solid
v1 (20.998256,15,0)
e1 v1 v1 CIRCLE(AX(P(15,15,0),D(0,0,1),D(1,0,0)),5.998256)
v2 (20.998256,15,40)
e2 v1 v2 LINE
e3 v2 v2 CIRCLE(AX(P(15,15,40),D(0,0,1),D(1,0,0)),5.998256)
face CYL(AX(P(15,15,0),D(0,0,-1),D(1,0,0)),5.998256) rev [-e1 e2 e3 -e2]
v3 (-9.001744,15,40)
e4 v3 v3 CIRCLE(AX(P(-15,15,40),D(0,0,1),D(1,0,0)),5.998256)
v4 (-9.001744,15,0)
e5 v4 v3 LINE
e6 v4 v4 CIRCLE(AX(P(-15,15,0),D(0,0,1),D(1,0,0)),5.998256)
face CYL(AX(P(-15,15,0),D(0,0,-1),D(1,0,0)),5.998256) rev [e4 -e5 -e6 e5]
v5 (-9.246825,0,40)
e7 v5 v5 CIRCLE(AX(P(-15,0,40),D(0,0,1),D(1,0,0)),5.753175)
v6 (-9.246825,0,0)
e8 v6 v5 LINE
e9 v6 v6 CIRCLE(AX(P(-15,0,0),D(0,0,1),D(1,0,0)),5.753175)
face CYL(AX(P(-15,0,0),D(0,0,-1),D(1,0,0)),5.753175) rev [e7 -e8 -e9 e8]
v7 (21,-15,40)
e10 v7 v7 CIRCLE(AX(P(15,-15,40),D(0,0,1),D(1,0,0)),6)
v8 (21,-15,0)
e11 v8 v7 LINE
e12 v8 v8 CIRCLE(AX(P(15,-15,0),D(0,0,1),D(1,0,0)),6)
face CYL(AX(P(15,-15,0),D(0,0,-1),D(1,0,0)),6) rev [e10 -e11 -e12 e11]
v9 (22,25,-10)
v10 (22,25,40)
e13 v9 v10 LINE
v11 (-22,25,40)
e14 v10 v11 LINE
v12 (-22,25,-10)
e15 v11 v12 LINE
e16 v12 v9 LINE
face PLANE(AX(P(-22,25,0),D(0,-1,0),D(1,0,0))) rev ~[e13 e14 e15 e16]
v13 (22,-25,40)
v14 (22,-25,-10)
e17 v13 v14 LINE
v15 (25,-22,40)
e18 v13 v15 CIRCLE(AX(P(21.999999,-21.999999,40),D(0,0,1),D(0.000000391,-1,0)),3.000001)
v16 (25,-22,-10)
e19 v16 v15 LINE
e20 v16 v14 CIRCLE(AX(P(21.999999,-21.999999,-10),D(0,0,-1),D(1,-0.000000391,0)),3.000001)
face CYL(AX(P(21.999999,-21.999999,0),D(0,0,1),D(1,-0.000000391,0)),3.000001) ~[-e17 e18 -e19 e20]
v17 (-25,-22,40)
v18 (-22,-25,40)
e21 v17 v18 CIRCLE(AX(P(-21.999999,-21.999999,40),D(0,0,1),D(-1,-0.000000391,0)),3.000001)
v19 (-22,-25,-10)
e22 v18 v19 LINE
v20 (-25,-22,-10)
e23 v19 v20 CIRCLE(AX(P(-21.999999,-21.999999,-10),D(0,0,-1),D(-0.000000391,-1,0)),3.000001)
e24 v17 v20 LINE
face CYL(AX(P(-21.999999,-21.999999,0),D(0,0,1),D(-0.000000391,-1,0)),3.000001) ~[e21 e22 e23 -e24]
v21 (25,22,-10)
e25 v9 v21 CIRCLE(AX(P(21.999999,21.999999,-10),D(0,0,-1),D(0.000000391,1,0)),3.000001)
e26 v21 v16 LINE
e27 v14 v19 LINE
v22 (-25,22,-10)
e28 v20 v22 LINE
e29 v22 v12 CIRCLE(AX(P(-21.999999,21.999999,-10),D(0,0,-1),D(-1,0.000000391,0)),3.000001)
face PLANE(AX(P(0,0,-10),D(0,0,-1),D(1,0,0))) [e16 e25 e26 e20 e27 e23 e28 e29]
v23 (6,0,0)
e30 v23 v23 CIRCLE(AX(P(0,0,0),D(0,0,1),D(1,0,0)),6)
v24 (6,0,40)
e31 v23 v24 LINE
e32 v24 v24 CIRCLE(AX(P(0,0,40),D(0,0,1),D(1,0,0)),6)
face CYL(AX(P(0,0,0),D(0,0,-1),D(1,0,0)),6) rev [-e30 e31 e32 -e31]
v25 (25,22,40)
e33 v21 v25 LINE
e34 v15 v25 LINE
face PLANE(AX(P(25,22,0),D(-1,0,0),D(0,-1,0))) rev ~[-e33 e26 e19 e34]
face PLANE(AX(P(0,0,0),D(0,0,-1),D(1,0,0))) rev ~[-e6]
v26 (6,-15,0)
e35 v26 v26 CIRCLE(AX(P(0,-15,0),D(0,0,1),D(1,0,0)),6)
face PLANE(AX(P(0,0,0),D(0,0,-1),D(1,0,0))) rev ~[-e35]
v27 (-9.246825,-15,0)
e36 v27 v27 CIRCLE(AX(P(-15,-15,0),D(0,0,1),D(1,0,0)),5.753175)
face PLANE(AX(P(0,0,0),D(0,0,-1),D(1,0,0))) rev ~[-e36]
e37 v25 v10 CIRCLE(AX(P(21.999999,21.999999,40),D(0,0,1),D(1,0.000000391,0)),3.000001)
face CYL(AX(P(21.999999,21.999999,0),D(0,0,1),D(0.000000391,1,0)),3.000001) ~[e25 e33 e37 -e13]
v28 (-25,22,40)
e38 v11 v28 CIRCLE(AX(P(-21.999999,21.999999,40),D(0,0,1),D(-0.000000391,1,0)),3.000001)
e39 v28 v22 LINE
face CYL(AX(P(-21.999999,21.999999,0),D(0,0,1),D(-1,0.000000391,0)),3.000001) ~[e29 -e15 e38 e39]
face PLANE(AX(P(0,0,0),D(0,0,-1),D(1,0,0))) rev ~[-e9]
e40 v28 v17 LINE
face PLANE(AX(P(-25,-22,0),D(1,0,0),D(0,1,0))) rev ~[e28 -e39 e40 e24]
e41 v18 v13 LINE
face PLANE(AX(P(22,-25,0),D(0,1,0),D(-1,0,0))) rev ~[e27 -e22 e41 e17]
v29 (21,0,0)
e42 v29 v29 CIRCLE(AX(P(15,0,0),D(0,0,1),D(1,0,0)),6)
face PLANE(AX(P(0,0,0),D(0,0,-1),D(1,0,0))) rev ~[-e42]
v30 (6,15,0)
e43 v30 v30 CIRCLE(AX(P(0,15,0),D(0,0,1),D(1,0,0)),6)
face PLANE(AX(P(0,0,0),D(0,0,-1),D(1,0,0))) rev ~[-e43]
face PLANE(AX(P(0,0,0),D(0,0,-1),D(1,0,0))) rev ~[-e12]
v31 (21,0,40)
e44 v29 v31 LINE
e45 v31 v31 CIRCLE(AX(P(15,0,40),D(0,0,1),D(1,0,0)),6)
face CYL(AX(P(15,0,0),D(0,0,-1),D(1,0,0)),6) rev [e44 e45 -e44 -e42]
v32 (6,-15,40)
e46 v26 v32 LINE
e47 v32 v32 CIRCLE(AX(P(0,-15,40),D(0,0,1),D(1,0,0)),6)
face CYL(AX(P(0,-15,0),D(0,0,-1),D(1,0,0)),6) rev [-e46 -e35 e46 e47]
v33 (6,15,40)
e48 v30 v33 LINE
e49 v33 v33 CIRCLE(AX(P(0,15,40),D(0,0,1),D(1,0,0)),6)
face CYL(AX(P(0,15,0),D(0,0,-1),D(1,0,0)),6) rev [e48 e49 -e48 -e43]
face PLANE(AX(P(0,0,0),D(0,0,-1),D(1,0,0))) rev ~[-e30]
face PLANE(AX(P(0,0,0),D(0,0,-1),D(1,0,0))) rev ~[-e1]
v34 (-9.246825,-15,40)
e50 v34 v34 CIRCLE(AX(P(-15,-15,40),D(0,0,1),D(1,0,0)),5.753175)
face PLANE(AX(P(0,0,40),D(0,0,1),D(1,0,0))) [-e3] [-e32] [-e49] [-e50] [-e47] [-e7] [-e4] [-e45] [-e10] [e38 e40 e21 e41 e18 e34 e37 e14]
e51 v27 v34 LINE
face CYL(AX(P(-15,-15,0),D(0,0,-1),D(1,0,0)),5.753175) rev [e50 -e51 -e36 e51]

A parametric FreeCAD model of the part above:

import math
import FreeCAD as App
import Part
import Sketcher
Q = App.Units.Quantity

doc = App.newDocument("Part")
body = doc.addObject("PartDesign::Body", "Body")

# Sketch on XY plane
sketch1 = body.newObject("Sketcher::SketchObject", "Sketch")
sketch1.AttachmentSupport = (doc.getObject("XY_Plane"), [""])
sketch1.MapMode = "FlatFace"
sketch1.addGeometry([
    Part.ArcOfCircle(Part.Circle(App.Vector(21.999999, 21.999999, 0), App.Vector(0, 0, 1), 3.000001), math.radians(0.000022), math.radians(89.999978)),  # 0
    Part.LineSegment(App.Vector(22, 25, 0), App.Vector(-22, 25, 0)),  # 1
    Part.ArcOfCircle(Part.Circle(App.Vector(-21.999999, 21.999999, 0), App.Vector(0, 0, 1), 3.000001), math.radians(90.000022), math.radians(179.999978)),  # 2
    Part.LineSegment(App.Vector(-25, 22, 0), App.Vector(-25, -22, 0)),  # 3
    Part.ArcOfCircle(Part.Circle(App.Vector(-21.999999, -21.999999, 0), App.Vector(0, 0, 1), 3.000001), math.radians(-179.999978), math.radians(-90.000022)),  # 4
    Part.LineSegment(App.Vector(-22, -25, 0), App.Vector(22, -25, 0)),  # 5
    Part.ArcOfCircle(Part.Circle(App.Vector(21.999999, -21.999999, 0), App.Vector(0, 0, 1), 3.000001), math.radians(-89.999978), math.radians(-0.000022)),  # 6
    Part.LineSegment(App.Vector(25, -22, 0), App.Vector(25, 22, 0)),  # 7
    Part.Circle(App.Vector(-15, -15, 0), App.Vector(0, 0, 1), 5.753175),  # 8
    Part.Circle(App.Vector(0, -15, 0), App.Vector(0, 0, 1), 6),  # 9
    Part.Circle(App.Vector(15, -15, 0), App.Vector(0, 0, 1), 6),  # 10
    Part.Circle(App.Vector(-15, 0, 0), App.Vector(0, 0, 1), 5.753175),  # 11
    Part.Circle(App.Vector(0, 0, 0), App.Vector(0, 0, 1), 6),  # 12
    Part.Circle(App.Vector(-15, 15, 0), App.Vector(0, 0, 1), 5.998256),  # 13
    Part.Circle(App.Vector(0, 15, 0), App.Vector(0, 0, 1), 6),  # 14
    Part.Circle(App.Vector(15, 0, 0), App.Vector(0, 0, 1), 6),  # 15
    Part.Circle(App.Vector(15, 15, 0), App.Vector(0, 0, 1), 5.998256),  # 16
], False)
sketch1.addConstraint([
    Sketcher.Constraint("Tangent", 0, 2, 1, 1),
    Sketcher.Constraint("Tangent", 1, 2, 2, 1),
    Sketcher.Constraint("Tangent", 2, 2, 3, 1),
    Sketcher.Constraint("Tangent", 3, 2, 4, 1),
    Sketcher.Constraint("Tangent", 4, 2, 5, 1),
    Sketcher.Constraint("Tangent", 5, 2, 6, 1),
    Sketcher.Constraint("Tangent", 6, 2, 7, 1),
    Sketcher.Constraint("Tangent", 7, 2, 0, 1),
    Sketcher.Constraint("Horizontal", 1),
    Sketcher.Constraint("Vertical", 3),
    Sketcher.Constraint("Horizontal", 5),
    Sketcher.Constraint("Vertical", 7),
    Sketcher.Constraint("Coincident", 12, 3, -1, 1),
    Sketcher.Constraint("Equal", 0, 2),
    Sketcher.Constraint("Equal", 2, 4),
    Sketcher.Constraint("Equal", 4, 6),
    Sketcher.Constraint("Equal", 9, 10),
    Sketcher.Constraint("Equal", 8, 11),
    Sketcher.Constraint("Equal", 10, 12),
    Sketcher.Constraint("Equal", 12, 14),
    Sketcher.Constraint("Equal", 14, 15),
    Sketcher.Constraint("Equal", 13, 16),
    Sketcher.Constraint("Symmetric", 0, 3, 4, 3, -1, 1),
    Sketcher.Constraint("Symmetric", 10, 3, 13, 3, -1, 1),
    Sketcher.Constraint("Symmetric", 9, 3, 14, 3, -1, 1),
    Sketcher.Constraint("Symmetric", 11, 3, 15, 3, -1, 1),
    Sketcher.Constraint("Symmetric", 8, 3, 16, 3, -1, 1),
    Sketcher.Constraint("Symmetric", 8, 3, 10, 3, -2),
    Sketcher.Constraint("PointOnObject", 9, 3, -2),
    Sketcher.Constraint("PointOnObject", 11, 3, -1),
    Sketcher.Constraint("Horizontal", 8, 3, 9, 3),
    Sketcher.Constraint("Vertical", 8, 3, 11, 3),
    Sketcher.Constraint("Equal", 5, 3),
    Sketcher.Constraint("Diameter", 9, Q("12 mm")),
    Sketcher.Constraint("Radius", 0, Q("3.000001 mm")),
    Sketcher.Constraint("DistanceX", 1, 2, 1, 1, Q("44 mm")),
    Sketcher.Constraint("DistanceX", 8, 3, -1, 1, Q("15 mm")),
    Sketcher.Constraint("DistanceY", 8, 3, -1, 1, Q("15 mm")),
    Sketcher.Constraint("Diameter", 8, Q("11.50635 mm")),
    Sketcher.Constraint("Diameter", 13, Q("11.996512 mm")),
])
pad1 = body.newObject("PartDesign::Pad", "Pad")
pad1.Profile = sketch1
pad1.Length = 40

# Sketch on XY plane
sketch2 = body.newObject("Sketcher::SketchObject", "Sketch001")
sketch2.AttachmentSupport = (doc.getObject("XY_Plane"), [""])
sketch2.MapMode = "FlatFace"
sketch2.addGeometry([
    Part.ArcOfCircle(Part.Circle(App.Vector(21.999999, -21.999999, 0), App.Vector(0, 0, 1), 3.000001), math.radians(-89.999978), math.radians(-0.000022)),  # 0
    Part.LineSegment(App.Vector(22, -25, 0), App.Vector(-22, -25, 0)),  # 1
    Part.ArcOfCircle(Part.Circle(App.Vector(-21.999999, -21.999999, 0), App.Vector(0, 0, 1), 3.000001), math.radians(-179.999978), math.radians(-90.000022)),  # 2
    Part.LineSegment(App.Vector(-25, -22, 0), App.Vector(-25, 22, 0)),  # 3
    Part.ArcOfCircle(Part.Circle(App.Vector(-21.999999, 21.999999, 0), App.Vector(0, 0, 1), 3.000001), math.radians(90.000022), math.radians(179.999978)),  # 4
    Part.LineSegment(App.Vector(-22, 25, 0), App.Vector(22, 25, 0)),  # 5
    Part.ArcOfCircle(Part.Circle(App.Vector(21.999999, 21.999999, 0), App.Vector(0, 0, 1), 3.000001), math.radians(0.000022), math.radians(89.999978)),  # 6
    Part.LineSegment(App.Vector(25, 22, 0), App.Vector(25, -22, 0)),  # 7
], False)
sketch2.addConstraint([
    Sketcher.Constraint("Tangent", 0, 1, 1, 1),
    Sketcher.Constraint("Tangent", 1, 2, 2, 2),
    Sketcher.Constraint("Tangent", 2, 1, 3, 1),
    Sketcher.Constraint("Tangent", 3, 2, 4, 2),
    Sketcher.Constraint("Tangent", 4, 1, 5, 1),
    Sketcher.Constraint("Tangent", 5, 2, 6, 2),
    Sketcher.Constraint("Tangent", 6, 1, 7, 1),
    Sketcher.Constraint("Tangent", 7, 2, 0, 2),
    Sketcher.Constraint("Horizontal", 1),
    Sketcher.Constraint("Vertical", 3),
    Sketcher.Constraint("Horizontal", 5),
    Sketcher.Constraint("Vertical", 7),
    Sketcher.Constraint("Equal", 0, 2),
    Sketcher.Constraint("Equal", 2, 4),
    Sketcher.Constraint("Equal", 4, 6),
    Sketcher.Constraint("Symmetric", 0, 3, 4, 3, -1, 1),
    Sketcher.Constraint("Equal", 5, 3),
    Sketcher.Constraint("Radius", 0, Q("3.000001 mm")),
    Sketcher.Constraint("DistanceX", 1, 2, 1, 1, Q("44 mm")),
])
pad2 = body.newObject("PartDesign::Pad", "Pad001")
pad2.Profile = sketch2
pad2.Length = 10
pad2.Reversed = True

doc.recompute()
